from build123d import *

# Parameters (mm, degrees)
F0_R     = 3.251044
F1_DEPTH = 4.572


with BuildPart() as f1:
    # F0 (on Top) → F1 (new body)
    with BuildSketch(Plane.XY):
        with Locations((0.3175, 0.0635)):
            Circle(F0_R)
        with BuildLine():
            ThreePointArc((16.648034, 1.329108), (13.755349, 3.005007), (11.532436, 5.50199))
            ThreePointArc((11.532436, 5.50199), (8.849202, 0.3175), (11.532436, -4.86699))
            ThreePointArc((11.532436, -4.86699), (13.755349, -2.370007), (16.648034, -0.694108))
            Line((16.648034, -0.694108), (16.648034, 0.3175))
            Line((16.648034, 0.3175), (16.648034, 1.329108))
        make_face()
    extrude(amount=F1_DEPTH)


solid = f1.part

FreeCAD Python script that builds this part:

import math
import FreeCAD as App
import Part
import Sketcher
Q = App.Units.Quantity

doc = App.newDocument("Part")
body = doc.addObject("PartDesign::Body", "Body")
body.AllowCompound = True

# Sketch on XY plane
sketch1 = doc.addObject("Sketcher::SketchObject", "Sketch")
body.addObject(sketch1)
sketch1.AttachmentSupport = (doc.XY_Plane, [""])
sketch1.MapMode = "FlatFace"
sketch1.addGeometry(Part.Circle(App.Vector(0.3, 0.1, 0), App.Vector(0, 0, 1), 3.3), False)
sketch1.addGeometry(Part.ArcOfCircle(Part.Circle(App.Vector(20.4, 11.2, 0), App.Vector(0, 0, 1), 10.5), math.radians(-147), math.radians(-111)), False)
sketch1.addGeometry(Part.ArcOfCircle(Part.Circle(App.Vector(15.2, 0.3, 0), App.Vector(0, 0, 1), 6.4), math.radians(125), math.radians(235)), False)
sketch1.addGeometry(Part.ArcOfCircle(Part.Circle(App.Vector(20.4, -10.5, 0), App.Vector(0, 0, 1), 10.5), math.radians(111), math.radians(147)), False)
sketch1.addGeometry(Part.LineSegment(App.Vector(16.6, -0.7, 0), App.Vector(16.6, 1.3, 0)), False)
sketch1.addConstraint(Sketcher.Constraint("Coincident", 1, 1, 2, 1))
sketch1.addConstraint(Sketcher.Constraint("Coincident", 2, 2, 3, 2))
sketch1.addConstraint(Sketcher.Constraint("Coincident", 3, 1, 4, 1))
sketch1.addConstraint(Sketcher.Constraint("Coincident", 4, 2, 1, 2))
sketch1.addConstraint(Sketcher.Constraint("Vertical", 4))
sketch1.addConstraint(Sketcher.Constraint("Equal", 1, 3))
sketch1.addConstraint(Sketcher.Constraint("Vertical", 1, 3, 3, 3))
sketch1.addConstraint(Sketcher.Constraint("Vertical", 1, 1, 2, 2))
sketch1.addConstraint(Sketcher.Constraint("Radius", 2, Q("6.3503 mm")))
sketch1.addConstraint(Sketcher.Constraint("DistanceY", 0, 3, 2, 3, Q("0.01 in")))
sketch1.addConstraint(Sketcher.Constraint("Diameter", 0, Q("6.502088 mm")))
sketch1.addConstraint(Sketcher.Constraint("DistanceX", -1, 1, 0, 3, Q("0.0125 in")))
sketch1.addConstraint(Sketcher.Constraint("DistanceY", -1, 1, 0, 3, Q("0.0025 in")))
sketch1.addConstraint(Sketcher.Constraint("Radius", 1, Q("10.547527 mm")))
sketch1.addConstraint(Sketcher.Constraint("DistanceX", -1, 1, 2, 3, Q("15.199502 mm")))
sketch1.addConstraint(Sketcher.Constraint("DistanceX", 2, 2, 3, 1, Q("5.115598 mm")))
sketch1.addConstraint(Sketcher.Constraint("DistanceY", 3, 1, 1, 1, Q("6.196098 mm")))
sketch1.addConstraint(Sketcher.Constraint("DistanceY", 4, 1, 4, 2, Q("2.023216 mm")))
pad1 = doc.addObject("PartDesign::Pad", "Pad")
body.addObject(pad1)
pad1.Profile = sketch1
pad1.Length = Q("0.18 in")

doc.recompute()
